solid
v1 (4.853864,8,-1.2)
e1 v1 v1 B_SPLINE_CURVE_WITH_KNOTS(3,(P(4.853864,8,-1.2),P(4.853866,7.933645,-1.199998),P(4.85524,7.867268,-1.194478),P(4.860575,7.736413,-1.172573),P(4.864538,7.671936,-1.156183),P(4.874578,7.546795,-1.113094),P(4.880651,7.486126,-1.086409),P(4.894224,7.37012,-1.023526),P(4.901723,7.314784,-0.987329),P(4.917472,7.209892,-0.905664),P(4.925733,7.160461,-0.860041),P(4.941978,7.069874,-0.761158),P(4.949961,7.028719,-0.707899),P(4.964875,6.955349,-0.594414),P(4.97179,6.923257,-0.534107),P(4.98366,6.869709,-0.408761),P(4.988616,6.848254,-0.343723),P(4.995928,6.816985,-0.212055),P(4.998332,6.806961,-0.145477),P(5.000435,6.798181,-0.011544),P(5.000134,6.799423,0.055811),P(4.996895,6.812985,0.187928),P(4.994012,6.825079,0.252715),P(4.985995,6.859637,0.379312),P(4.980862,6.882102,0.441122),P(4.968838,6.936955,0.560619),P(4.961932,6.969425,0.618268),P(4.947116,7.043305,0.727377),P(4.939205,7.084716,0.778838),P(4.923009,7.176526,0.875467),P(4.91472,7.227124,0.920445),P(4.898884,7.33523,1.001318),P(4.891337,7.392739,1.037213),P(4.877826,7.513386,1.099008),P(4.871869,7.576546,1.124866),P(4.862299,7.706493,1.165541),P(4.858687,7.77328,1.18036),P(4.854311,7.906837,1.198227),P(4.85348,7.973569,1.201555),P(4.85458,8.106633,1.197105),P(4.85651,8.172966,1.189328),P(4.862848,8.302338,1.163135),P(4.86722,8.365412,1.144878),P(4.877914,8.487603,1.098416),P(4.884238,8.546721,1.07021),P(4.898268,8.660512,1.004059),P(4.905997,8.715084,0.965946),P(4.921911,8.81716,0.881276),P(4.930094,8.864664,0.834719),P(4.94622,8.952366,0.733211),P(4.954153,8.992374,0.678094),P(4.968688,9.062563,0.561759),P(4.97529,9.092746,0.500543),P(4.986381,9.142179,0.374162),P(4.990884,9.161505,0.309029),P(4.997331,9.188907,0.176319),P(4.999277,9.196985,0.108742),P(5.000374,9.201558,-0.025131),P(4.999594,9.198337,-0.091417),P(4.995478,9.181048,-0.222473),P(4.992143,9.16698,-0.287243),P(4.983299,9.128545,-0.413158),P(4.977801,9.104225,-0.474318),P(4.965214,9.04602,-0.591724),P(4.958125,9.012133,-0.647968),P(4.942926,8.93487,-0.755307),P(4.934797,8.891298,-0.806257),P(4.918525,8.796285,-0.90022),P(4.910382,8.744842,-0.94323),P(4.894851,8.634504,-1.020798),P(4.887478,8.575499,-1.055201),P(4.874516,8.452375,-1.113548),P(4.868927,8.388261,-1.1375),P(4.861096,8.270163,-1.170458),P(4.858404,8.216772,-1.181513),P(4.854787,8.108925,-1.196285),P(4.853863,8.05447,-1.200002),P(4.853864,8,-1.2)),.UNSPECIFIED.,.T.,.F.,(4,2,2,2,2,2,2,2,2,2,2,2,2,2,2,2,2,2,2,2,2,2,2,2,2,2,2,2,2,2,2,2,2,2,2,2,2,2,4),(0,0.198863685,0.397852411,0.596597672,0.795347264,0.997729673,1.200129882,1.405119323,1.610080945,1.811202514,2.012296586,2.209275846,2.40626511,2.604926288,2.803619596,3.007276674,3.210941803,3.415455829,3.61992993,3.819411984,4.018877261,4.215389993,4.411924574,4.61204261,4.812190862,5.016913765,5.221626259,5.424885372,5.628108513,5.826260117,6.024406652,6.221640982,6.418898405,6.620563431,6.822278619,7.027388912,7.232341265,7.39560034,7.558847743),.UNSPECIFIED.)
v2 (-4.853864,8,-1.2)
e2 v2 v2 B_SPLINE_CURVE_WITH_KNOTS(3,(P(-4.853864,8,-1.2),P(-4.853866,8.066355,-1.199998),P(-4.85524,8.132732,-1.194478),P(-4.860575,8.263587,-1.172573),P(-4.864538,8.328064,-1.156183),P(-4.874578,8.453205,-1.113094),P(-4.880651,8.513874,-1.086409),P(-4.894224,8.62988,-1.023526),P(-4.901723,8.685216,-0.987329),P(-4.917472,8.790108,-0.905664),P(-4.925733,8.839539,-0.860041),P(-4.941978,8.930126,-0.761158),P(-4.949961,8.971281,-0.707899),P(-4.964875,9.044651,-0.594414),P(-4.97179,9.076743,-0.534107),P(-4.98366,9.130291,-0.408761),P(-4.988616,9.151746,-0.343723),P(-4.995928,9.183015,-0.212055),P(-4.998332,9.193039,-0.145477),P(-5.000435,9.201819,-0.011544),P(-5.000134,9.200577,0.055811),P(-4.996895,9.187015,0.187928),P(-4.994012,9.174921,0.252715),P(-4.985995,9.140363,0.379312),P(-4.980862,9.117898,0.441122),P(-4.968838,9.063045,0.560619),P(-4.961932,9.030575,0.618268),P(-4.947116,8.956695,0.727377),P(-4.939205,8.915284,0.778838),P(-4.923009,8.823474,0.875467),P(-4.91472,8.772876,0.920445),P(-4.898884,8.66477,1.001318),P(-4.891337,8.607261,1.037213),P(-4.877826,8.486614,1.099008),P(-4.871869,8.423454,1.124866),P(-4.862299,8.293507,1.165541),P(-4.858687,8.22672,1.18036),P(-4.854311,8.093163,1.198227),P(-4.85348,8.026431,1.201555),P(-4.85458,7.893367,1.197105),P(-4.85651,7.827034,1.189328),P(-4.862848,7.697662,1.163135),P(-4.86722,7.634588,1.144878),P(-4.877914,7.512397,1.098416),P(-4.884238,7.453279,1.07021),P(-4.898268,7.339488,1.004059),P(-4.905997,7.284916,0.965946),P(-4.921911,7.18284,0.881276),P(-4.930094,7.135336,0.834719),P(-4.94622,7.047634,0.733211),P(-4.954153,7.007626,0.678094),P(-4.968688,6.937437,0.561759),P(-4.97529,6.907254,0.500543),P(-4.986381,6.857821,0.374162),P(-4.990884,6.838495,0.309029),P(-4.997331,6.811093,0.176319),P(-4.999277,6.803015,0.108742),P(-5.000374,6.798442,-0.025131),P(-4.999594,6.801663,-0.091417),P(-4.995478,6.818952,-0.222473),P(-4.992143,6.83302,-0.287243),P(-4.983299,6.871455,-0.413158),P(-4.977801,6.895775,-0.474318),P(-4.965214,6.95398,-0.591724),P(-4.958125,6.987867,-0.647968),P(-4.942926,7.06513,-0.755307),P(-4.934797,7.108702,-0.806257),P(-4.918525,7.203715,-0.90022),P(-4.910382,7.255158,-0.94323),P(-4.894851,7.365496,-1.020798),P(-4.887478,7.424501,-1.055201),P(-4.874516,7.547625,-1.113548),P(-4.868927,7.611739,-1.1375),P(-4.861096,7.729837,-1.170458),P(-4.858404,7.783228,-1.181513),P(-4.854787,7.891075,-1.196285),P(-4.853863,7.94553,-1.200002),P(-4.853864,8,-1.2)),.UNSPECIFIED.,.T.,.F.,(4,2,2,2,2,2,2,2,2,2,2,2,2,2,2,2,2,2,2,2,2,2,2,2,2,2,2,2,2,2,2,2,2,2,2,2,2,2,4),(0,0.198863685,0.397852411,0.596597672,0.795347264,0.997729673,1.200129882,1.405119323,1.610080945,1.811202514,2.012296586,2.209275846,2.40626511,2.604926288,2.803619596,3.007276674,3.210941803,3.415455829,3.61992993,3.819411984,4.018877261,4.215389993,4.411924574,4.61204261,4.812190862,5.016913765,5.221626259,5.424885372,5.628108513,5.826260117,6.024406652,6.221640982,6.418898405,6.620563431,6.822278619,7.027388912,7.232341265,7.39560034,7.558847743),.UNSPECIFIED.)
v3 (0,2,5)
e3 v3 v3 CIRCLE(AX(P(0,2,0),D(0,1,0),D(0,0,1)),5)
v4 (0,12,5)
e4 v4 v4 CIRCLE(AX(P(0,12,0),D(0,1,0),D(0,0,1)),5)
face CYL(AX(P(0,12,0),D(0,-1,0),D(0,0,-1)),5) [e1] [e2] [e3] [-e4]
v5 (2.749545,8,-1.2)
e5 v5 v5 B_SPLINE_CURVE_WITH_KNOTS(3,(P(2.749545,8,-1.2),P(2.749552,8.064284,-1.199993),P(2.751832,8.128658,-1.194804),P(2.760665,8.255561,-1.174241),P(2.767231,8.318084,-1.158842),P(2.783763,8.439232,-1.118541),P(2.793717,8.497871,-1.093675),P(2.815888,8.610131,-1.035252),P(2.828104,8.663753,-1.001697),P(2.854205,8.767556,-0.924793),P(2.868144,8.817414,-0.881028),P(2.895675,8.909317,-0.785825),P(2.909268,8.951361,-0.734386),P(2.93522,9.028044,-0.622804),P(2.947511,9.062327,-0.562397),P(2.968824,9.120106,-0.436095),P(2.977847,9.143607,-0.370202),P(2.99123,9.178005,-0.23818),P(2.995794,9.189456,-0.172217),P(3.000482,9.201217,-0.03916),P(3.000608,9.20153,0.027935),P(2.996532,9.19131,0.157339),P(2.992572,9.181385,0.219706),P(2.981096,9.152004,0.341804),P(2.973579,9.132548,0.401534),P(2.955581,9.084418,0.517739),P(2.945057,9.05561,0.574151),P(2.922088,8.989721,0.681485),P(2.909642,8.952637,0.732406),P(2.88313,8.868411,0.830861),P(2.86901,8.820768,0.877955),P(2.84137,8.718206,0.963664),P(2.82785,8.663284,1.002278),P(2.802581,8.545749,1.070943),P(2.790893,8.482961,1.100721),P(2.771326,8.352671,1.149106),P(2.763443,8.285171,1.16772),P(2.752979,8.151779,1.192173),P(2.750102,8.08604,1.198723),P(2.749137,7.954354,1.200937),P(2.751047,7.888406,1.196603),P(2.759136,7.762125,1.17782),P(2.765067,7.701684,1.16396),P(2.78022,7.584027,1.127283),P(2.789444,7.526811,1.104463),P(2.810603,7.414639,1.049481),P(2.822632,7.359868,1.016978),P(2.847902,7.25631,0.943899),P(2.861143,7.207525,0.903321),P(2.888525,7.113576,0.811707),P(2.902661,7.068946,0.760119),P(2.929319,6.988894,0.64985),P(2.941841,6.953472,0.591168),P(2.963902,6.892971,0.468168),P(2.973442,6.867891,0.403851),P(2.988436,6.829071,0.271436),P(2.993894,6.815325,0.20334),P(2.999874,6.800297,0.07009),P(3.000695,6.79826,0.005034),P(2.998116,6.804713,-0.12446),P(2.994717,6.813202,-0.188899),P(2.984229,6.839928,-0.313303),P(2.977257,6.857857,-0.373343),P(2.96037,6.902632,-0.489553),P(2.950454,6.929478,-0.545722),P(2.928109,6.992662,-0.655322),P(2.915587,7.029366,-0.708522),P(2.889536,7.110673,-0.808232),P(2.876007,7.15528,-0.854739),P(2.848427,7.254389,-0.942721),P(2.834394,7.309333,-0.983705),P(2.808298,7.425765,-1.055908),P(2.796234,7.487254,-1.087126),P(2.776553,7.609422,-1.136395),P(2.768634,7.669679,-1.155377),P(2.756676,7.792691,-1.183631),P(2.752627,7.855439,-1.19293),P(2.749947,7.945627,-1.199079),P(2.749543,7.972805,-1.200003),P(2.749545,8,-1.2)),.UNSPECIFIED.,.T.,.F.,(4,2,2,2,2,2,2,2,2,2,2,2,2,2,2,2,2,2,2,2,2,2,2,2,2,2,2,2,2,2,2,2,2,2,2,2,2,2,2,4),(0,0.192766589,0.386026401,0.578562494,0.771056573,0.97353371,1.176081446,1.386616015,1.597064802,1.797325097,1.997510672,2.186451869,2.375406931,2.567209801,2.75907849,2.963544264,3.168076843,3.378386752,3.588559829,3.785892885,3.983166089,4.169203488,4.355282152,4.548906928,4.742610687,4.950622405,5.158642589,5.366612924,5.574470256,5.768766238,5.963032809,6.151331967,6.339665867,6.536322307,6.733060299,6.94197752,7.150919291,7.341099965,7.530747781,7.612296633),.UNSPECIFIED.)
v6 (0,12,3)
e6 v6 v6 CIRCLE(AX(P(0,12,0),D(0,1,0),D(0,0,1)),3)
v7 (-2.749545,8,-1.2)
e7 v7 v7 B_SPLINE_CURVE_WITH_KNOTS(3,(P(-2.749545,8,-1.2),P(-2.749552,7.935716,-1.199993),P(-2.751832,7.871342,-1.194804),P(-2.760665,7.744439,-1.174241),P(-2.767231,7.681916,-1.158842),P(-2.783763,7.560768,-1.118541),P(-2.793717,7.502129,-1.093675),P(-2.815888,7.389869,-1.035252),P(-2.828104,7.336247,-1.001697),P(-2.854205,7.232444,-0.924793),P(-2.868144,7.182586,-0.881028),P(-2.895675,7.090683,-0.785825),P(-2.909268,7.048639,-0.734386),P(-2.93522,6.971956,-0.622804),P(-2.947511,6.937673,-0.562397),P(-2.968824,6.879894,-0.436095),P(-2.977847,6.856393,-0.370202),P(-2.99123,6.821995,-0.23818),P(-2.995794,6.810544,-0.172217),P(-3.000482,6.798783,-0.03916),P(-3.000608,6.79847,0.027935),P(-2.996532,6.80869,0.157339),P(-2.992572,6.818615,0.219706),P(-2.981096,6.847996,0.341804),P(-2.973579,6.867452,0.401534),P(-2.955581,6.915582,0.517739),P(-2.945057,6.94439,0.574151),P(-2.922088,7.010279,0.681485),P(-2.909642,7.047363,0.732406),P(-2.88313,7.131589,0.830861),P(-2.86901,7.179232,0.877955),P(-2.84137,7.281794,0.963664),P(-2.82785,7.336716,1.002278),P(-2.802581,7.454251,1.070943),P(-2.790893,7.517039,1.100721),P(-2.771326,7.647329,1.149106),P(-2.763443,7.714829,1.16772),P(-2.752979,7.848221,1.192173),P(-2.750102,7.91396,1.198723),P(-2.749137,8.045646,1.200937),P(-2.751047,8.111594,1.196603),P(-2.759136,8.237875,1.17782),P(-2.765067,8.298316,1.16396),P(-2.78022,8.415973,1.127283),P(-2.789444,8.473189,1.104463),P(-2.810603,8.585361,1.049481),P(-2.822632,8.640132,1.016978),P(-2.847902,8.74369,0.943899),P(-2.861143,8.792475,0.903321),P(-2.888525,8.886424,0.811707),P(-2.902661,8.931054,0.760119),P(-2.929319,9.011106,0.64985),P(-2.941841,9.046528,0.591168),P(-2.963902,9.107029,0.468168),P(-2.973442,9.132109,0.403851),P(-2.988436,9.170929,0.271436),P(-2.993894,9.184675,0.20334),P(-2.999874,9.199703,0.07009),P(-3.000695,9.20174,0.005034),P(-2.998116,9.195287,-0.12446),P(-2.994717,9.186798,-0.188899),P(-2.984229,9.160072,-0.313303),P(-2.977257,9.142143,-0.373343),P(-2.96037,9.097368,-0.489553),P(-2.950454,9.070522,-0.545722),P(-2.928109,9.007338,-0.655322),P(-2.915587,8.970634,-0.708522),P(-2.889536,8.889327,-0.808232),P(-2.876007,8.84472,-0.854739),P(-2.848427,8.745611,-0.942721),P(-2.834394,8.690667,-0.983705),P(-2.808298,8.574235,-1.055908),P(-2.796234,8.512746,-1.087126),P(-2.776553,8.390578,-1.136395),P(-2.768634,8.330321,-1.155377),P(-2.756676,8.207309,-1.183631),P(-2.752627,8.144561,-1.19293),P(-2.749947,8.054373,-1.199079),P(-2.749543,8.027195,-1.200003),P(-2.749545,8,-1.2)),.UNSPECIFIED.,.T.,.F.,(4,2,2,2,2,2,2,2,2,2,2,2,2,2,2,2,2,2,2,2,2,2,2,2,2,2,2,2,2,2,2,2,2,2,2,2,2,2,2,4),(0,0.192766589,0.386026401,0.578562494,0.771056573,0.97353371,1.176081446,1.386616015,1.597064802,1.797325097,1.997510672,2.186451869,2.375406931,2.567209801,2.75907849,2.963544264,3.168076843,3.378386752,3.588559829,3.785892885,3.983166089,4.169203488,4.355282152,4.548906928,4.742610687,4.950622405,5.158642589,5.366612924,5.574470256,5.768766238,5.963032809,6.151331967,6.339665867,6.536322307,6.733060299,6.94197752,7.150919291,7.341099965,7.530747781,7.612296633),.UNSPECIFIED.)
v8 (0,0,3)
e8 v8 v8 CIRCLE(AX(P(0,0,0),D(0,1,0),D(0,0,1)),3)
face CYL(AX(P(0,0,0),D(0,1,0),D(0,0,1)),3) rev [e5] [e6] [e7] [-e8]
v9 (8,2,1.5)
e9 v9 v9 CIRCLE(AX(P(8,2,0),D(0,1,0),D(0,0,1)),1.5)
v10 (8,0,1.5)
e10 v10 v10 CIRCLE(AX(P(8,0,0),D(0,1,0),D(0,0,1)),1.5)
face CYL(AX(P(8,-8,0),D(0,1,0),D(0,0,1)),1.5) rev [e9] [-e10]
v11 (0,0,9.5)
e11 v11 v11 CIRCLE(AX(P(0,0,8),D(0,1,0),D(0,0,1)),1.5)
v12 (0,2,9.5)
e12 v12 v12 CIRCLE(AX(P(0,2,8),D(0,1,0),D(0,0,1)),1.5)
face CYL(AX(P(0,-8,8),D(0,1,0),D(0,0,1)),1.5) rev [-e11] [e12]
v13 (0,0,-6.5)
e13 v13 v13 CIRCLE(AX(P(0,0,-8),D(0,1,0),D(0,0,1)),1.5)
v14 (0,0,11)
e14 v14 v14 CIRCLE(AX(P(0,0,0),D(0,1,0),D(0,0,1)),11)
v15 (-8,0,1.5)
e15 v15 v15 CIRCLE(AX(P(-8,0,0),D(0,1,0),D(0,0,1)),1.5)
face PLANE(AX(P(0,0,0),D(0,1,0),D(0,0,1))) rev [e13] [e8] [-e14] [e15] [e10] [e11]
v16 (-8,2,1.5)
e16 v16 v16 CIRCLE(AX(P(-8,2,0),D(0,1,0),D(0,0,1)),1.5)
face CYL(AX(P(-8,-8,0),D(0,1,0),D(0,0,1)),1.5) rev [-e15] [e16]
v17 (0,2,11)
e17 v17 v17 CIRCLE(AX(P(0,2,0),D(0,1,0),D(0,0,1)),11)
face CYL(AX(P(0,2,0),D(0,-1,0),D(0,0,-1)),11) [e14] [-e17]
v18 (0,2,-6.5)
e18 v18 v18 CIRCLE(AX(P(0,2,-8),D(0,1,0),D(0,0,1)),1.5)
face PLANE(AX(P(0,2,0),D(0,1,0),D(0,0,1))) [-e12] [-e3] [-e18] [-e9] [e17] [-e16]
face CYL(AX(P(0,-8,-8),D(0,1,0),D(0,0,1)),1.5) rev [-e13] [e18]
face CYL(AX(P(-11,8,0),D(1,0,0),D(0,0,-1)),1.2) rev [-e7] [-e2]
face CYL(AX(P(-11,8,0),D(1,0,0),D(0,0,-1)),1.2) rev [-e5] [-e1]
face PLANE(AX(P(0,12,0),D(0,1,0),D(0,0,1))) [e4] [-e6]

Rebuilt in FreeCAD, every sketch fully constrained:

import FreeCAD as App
import Part
import Sketcher

V = App.Vector

doc = App.newDocument("Part")
body = doc.addObject("PartDesign::Body", "Body")

# Sketch on XZ plane
sketch1 = body.newObject("Sketcher::SketchObject", "Sketch")
sketch1.AttachmentSupport = (doc.getObject("XZ_Plane"), [""])
sketch1.MapMode = "FlatFace"
sketch1.addGeometry(Part.Circle(V(0, 0, 0), V(0, 0, 1), 11), False)
sketch1.addConstraint([
    Sketcher.Constraint("Coincident", 0, 3, -1, 1),
    Sketcher.Constraint("Diameter", 0, 22.0),
])
pad1 = body.newObject("PartDesign::Pad", "Pad")
pad1.Profile = sketch1
pad1.Length = 2
pad1.Reversed = True

# Sketch on XZ plane
sketch2 = body.newObject("Sketcher::SketchObject", "Sketch001")
sketch2.AttachmentSupport = (doc.getObject("XZ_Plane"), [""])
sketch2.MapMode = "FlatFace"
sketch2.AttachmentOffset = App.Placement(V(0, 0, -2), App.Rotation())
sketch2.addGeometry(Part.Circle(V(0, 0, 0), V(0, 0, 1), 5), False)
sketch2.addConstraint([
    Sketcher.Constraint("Coincident", 0, 3, -1, 1),
    Sketcher.Constraint("Diameter", 0, 10.0),
])
pad2 = body.newObject("PartDesign::Pad", "Pad001")
pad2.Profile = sketch2
pad2.Length = 10
pad2.Reversed = True

# Sketch on XZ plane
sketch3 = body.newObject("Sketcher::SketchObject", "Sketch002")
sketch3.AttachmentSupport = (doc.getObject("XZ_Plane"), [""])
sketch3.MapMode = "FlatFace"
sketch3.AttachmentOffset = App.Placement(V(0, 0, -12), App.Rotation())
sketch3.addGeometry(Part.Circle(V(0, 0, 0), V(0, 0, 1), 3), False)
sketch3.addConstraint([
    Sketcher.Constraint("Coincident", 0, 3, -1, 1),
    Sketcher.Constraint("Diameter", 0, 6.0),
])
pocket1 = body.newObject("PartDesign::Pocket", "Pocket")
pocket1.Profile = sketch3
pocket1.Type = "ThroughAll"
pocket1.Reversed = True

# Sketch on XZ plane
sketch4 = body.newObject("Sketcher::SketchObject", "Sketch003")
sketch4.AttachmentSupport = (doc.getObject("XZ_Plane"), [""])
sketch4.MapMode = "FlatFace"
sketch4.AttachmentOffset = App.Placement(V(0, 0, -2), App.Rotation())
sketch4.addGeometry([
    Part.Circle(V(0, -8, 0), V(0, 0, 1), 1.5),
    Part.Circle(V(8, 0, 0), V(0, 0, 1), 1.5),
    Part.Circle(V(0, 8, 0), V(0, 0, 1), 1.5),
    Part.Circle(V(-8, 0, 0), V(0, 0, 1), 1.5),
], False)
sketch4.addConstraint([
    Sketcher.Constraint("Equal", 0, 1),
    Sketcher.Constraint("Equal", 1, 2),
    Sketcher.Constraint("Equal", 2, 3),
    Sketcher.Constraint("Symmetric", 0, 3, 2, 3, -1, 1),
    Sketcher.Constraint("Symmetric", 1, 3, 3, 3, -1, 1),
    Sketcher.Constraint("PointOnObject", 0, 3, -2),
    Sketcher.Constraint("PointOnObject", 1, 3, -1),
    Sketcher.Constraint("Diameter", 0, 3.0),
    Sketcher.Constraint("DistanceY", 0, 3, -1, 1, 8.0),
    Sketcher.Constraint("DistanceX", -1, 1, 1, 3, 8.0),
])
pocket2 = body.newObject("PartDesign::Pocket", "Pocket001")
pocket2.Profile = sketch4
pocket2.Length = 10
pocket2.Reversed = True

# Sketch on YZ plane
sketch5 = body.newObject("Sketcher::SketchObject", "Sketch004")
sketch5.AttachmentSupport = (doc.getObject("YZ_Plane"), [""])
sketch5.MapMode = "FlatFace"
sketch5.addGeometry(Part.Circle(V(8, 0, 0), V(0, 0, 1), 1.2), False)
sketch5.addConstraint([
    Sketcher.Constraint("PointOnObject", 0, 3, -1),
    Sketcher.Constraint("Diameter", 0, 2.4),
    Sketcher.Constraint("DistanceX", -1, 1, 0, 3, 8.0),
])
pocket3 = body.newObject("PartDesign::Pocket", "Pocket002")
pocket3.Profile = sketch5
pocket3.Type = "ThroughAll"
pocket3.Midplane = True

doc.recompute()
